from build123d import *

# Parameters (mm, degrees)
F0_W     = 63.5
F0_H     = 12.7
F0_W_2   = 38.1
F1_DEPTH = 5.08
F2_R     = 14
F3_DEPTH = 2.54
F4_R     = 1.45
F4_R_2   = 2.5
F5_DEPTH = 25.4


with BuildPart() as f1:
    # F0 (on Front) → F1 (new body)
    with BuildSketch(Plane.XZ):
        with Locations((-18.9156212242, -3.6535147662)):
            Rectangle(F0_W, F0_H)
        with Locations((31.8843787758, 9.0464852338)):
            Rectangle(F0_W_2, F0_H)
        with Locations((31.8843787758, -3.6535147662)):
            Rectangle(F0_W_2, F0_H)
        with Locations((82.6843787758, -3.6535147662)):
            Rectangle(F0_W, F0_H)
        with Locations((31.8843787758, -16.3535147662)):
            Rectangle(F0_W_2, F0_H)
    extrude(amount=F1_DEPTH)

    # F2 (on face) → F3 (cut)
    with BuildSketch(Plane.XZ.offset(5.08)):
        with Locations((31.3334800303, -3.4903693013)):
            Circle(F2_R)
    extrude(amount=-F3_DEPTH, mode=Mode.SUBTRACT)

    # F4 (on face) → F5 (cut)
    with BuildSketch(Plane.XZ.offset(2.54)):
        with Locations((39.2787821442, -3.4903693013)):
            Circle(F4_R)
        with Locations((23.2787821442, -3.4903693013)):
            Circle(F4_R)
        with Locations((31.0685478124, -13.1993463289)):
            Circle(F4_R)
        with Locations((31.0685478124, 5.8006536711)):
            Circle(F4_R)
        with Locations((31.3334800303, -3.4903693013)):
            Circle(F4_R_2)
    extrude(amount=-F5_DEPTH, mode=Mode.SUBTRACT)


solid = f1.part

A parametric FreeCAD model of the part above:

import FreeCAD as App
import Part
import Sketcher
Q = App.Units.Quantity

doc = App.newDocument("Part")
body = doc.addObject("PartDesign::Body", "Body")

# Sketch on XZ plane
sketch1 = doc.addObject("Sketcher::SketchObject", "Sketch")
body.addObject(sketch1)
sketch1.AttachmentSupport = (doc.XZ_Plane, [""])
sketch1.MapMode = "FlatFace"
sketch1.addGeometry([
    Part.LineSegment(App.Vector(-50.665621, 2.696485, 0), App.Vector(-50.665621, -10.003515, 0)),  # 0
    Part.LineSegment(App.Vector(-50.665621, -10.003515, 0), App.Vector(12.834379, -10.003515, 0)),  # 1
    Part.LineSegment(App.Vector(12.834379, -10.003515, 0), App.Vector(12.834379, -22.703515, 0)),  # 2
    Part.LineSegment(App.Vector(12.834379, -22.703515, 0), App.Vector(50.934379, -22.703515, 0)),  # 3
    Part.LineSegment(App.Vector(50.934379, -22.703515, 0), App.Vector(50.934379, -10.003515, 0)),  # 4
    Part.LineSegment(App.Vector(50.934379, -10.003515, 0), App.Vector(114.434379, -10.003515, 0)),  # 5
    Part.LineSegment(App.Vector(114.434379, -10.003515, 0), App.Vector(114.434379, 2.696485, 0)),  # 6
    Part.LineSegment(App.Vector(114.434379, 2.696485, 0), App.Vector(50.934379, 2.696485, 0)),  # 7
    Part.LineSegment(App.Vector(50.934379, 2.696485, 0), App.Vector(50.934379, 15.396485, 0)),  # 8
    Part.LineSegment(App.Vector(50.934379, 15.396485, 0), App.Vector(12.834379, 15.396485, 0)),  # 9
    Part.LineSegment(App.Vector(12.834379, 15.396485, 0), App.Vector(12.834379, 2.696485, 0)),  # 10
    Part.LineSegment(App.Vector(12.834379, 2.696485, 0), App.Vector(-50.665621, 2.696485, 0)),  # 11
], False)
sketch1.addConstraint([
    Sketcher.Constraint("Coincident", 0, 2, 1, 1),
    Sketcher.Constraint("Coincident", 1, 2, 2, 1),
    Sketcher.Constraint("Coincident", 2, 2, 3, 1),
    Sketcher.Constraint("Coincident", 3, 2, 4, 1),
    Sketcher.Constraint("Coincident", 4, 2, 5, 1),
    Sketcher.Constraint("Coincident", 5, 2, 6, 1),
    Sketcher.Constraint("Coincident", 6, 2, 7, 1),
    Sketcher.Constraint("Coincident", 7, 2, 8, 1),
    Sketcher.Constraint("Coincident", 8, 2, 9, 1),
    Sketcher.Constraint("Coincident", 9, 2, 10, 1),
    Sketcher.Constraint("Coincident", 10, 2, 11, 1),
    Sketcher.Constraint("Coincident", 11, 2, 0, 1),
    Sketcher.Constraint("Vertical", 0),
    Sketcher.Constraint("Horizontal", 1),
    Sketcher.Constraint("Vertical", 2),
    Sketcher.Constraint("Horizontal", 3),
    Sketcher.Constraint("Vertical", 4),
    Sketcher.Constraint("Horizontal", 5),
    Sketcher.Constraint("Vertical", 6),
    Sketcher.Constraint("Horizontal", 7),
    Sketcher.Constraint("Vertical", 8),
    Sketcher.Constraint("Horizontal", 9),
    Sketcher.Constraint("Vertical", 10),
    Sketcher.Constraint("Horizontal", 11),
    Sketcher.Constraint("Horizontal", 1, 2, 4, 2),
    Sketcher.Constraint("Horizontal", 7, 2, 10, 2),
    Sketcher.Constraint("Vertical", 4, 2, 7, 2),
    Sketcher.Constraint("Vertical", 2, 2, 9, 2),
    Sketcher.Constraint("Equal", 1, 5),
    Sketcher.Constraint("Equal", 0, 2),
    Sketcher.Constraint("Equal", 6, 8),
    Sketcher.Constraint("DistanceX", 1, 1, 1, 2, Q("2.5 in")),
    Sketcher.Constraint("DistanceX", 3, 1, 3, 2, Q("1.5 in")),
    Sketcher.Constraint("DistanceY", 0, 2, 0, 1, Q("0.5 in")),
    Sketcher.Constraint("DistanceX", 0, 2, -1, 1, 50.665621),
    Sketcher.Constraint("DistanceY", 0, 2, -1, 1, 10.003515),
])
pad1 = doc.addObject("PartDesign::Pad", "Pad")
body.addObject(pad1)
pad1.Profile = sketch1
pad1.Length = Q("0.2 in")

# Sketch on XZ plane
sketch2 = doc.addObject("Sketcher::SketchObject", "Sketch001")
body.addObject(sketch2)
sketch2.AttachmentSupport = (doc.XZ_Plane, [""])
sketch2.MapMode = "FlatFace"
sketch2.AttachmentOffset = App.Placement(App.Vector(0, 0, 0.2 * 25.4), App.Rotation())
sketch2.addGeometry(Part.Circle(App.Vector(31.33348, -3.490369, 0), App.Vector(0, 0, 1), 14), False)
sketch2.addConstraint([
    Sketcher.Constraint("Diameter", 0, 28.0),
    Sketcher.Constraint("DistanceX", -1, 1, 0, 3, 31.33348),
    Sketcher.Constraint("DistanceY", 0, 3, -1, 1, 3.490369),
])
pocket1 = doc.addObject("PartDesign::Pocket", "Pocket")
body.addObject(pocket1)
pocket1.Profile = sketch2
pocket1.Length = Q("0.1 in")

# Sketch on XZ plane
sketch3 = doc.addObject("Sketcher::SketchObject", "Sketch002")
body.addObject(sketch3)
sketch3.AttachmentSupport = (doc.XZ_Plane, [""])
sketch3.MapMode = "FlatFace"
sketch3.AttachmentOffset = App.Placement(App.Vector(0, 0, 0.1 * 25.4), App.Rotation())
sketch3.addGeometry([
    Part.Circle(App.Vector(39.278782, -3.490369, 0), App.Vector(0, 0, 1), 1.45),  # 0
    Part.Circle(App.Vector(23.278782, -3.490369, 0), App.Vector(0, 0, 1), 1.45),  # 1
    Part.Circle(App.Vector(31.068548, -13.199346, 0), App.Vector(0, 0, 1), 1.45),  # 2
    Part.Circle(App.Vector(31.068548, 5.800654, 0), App.Vector(0, 0, 1), 1.45),  # 3
    Part.Circle(App.Vector(31.33348, -3.490369, 0), App.Vector(0, 0, 1), 2.5),  # 4
], False)
sketch3.addConstraint([
    Sketcher.Constraint("Equal", 0, 1),
    Sketcher.Constraint("Equal", 1, 2),
    Sketcher.Constraint("Equal", 2, 3),
    Sketcher.Constraint("Horizontal", 0, 3, 1, 3),
    Sketcher.Constraint("Horizontal", 1, 3, 4, 3),
    Sketcher.Constraint("Vertical", 2, 3, 3, 3),
    Sketcher.Constraint("Diameter", 0, 2.9),
    Sketcher.Constraint("Diameter", 4, 5.0),
    Sketcher.Constraint("DistanceX", 1, 3, 0, 3, 16.0),
    Sketcher.Constraint("DistanceY", 2, 3, 3, 3, 19.0),
    Sketcher.Constraint("DistanceY", 0, 3, -1, 1, 3.490369),
    Sketcher.Constraint("DistanceX", -1, 1, 4, 3, 31.33348),
    Sketcher.Constraint("DistanceX", -1, 1, 0, 3, 39.278782),
    Sketcher.Constraint("DistanceX", -1, 1, 2, 3, 31.068548),
    Sketcher.Constraint("DistanceY", 2, 3, -1, 1, 13.199346),
])
pocket2 = doc.addObject("PartDesign::Pocket", "Pocket001")
body.addObject(pocket2)
pocket2.Profile = sketch3
pocket2.Length = Q("1 in")

doc.recompute()
